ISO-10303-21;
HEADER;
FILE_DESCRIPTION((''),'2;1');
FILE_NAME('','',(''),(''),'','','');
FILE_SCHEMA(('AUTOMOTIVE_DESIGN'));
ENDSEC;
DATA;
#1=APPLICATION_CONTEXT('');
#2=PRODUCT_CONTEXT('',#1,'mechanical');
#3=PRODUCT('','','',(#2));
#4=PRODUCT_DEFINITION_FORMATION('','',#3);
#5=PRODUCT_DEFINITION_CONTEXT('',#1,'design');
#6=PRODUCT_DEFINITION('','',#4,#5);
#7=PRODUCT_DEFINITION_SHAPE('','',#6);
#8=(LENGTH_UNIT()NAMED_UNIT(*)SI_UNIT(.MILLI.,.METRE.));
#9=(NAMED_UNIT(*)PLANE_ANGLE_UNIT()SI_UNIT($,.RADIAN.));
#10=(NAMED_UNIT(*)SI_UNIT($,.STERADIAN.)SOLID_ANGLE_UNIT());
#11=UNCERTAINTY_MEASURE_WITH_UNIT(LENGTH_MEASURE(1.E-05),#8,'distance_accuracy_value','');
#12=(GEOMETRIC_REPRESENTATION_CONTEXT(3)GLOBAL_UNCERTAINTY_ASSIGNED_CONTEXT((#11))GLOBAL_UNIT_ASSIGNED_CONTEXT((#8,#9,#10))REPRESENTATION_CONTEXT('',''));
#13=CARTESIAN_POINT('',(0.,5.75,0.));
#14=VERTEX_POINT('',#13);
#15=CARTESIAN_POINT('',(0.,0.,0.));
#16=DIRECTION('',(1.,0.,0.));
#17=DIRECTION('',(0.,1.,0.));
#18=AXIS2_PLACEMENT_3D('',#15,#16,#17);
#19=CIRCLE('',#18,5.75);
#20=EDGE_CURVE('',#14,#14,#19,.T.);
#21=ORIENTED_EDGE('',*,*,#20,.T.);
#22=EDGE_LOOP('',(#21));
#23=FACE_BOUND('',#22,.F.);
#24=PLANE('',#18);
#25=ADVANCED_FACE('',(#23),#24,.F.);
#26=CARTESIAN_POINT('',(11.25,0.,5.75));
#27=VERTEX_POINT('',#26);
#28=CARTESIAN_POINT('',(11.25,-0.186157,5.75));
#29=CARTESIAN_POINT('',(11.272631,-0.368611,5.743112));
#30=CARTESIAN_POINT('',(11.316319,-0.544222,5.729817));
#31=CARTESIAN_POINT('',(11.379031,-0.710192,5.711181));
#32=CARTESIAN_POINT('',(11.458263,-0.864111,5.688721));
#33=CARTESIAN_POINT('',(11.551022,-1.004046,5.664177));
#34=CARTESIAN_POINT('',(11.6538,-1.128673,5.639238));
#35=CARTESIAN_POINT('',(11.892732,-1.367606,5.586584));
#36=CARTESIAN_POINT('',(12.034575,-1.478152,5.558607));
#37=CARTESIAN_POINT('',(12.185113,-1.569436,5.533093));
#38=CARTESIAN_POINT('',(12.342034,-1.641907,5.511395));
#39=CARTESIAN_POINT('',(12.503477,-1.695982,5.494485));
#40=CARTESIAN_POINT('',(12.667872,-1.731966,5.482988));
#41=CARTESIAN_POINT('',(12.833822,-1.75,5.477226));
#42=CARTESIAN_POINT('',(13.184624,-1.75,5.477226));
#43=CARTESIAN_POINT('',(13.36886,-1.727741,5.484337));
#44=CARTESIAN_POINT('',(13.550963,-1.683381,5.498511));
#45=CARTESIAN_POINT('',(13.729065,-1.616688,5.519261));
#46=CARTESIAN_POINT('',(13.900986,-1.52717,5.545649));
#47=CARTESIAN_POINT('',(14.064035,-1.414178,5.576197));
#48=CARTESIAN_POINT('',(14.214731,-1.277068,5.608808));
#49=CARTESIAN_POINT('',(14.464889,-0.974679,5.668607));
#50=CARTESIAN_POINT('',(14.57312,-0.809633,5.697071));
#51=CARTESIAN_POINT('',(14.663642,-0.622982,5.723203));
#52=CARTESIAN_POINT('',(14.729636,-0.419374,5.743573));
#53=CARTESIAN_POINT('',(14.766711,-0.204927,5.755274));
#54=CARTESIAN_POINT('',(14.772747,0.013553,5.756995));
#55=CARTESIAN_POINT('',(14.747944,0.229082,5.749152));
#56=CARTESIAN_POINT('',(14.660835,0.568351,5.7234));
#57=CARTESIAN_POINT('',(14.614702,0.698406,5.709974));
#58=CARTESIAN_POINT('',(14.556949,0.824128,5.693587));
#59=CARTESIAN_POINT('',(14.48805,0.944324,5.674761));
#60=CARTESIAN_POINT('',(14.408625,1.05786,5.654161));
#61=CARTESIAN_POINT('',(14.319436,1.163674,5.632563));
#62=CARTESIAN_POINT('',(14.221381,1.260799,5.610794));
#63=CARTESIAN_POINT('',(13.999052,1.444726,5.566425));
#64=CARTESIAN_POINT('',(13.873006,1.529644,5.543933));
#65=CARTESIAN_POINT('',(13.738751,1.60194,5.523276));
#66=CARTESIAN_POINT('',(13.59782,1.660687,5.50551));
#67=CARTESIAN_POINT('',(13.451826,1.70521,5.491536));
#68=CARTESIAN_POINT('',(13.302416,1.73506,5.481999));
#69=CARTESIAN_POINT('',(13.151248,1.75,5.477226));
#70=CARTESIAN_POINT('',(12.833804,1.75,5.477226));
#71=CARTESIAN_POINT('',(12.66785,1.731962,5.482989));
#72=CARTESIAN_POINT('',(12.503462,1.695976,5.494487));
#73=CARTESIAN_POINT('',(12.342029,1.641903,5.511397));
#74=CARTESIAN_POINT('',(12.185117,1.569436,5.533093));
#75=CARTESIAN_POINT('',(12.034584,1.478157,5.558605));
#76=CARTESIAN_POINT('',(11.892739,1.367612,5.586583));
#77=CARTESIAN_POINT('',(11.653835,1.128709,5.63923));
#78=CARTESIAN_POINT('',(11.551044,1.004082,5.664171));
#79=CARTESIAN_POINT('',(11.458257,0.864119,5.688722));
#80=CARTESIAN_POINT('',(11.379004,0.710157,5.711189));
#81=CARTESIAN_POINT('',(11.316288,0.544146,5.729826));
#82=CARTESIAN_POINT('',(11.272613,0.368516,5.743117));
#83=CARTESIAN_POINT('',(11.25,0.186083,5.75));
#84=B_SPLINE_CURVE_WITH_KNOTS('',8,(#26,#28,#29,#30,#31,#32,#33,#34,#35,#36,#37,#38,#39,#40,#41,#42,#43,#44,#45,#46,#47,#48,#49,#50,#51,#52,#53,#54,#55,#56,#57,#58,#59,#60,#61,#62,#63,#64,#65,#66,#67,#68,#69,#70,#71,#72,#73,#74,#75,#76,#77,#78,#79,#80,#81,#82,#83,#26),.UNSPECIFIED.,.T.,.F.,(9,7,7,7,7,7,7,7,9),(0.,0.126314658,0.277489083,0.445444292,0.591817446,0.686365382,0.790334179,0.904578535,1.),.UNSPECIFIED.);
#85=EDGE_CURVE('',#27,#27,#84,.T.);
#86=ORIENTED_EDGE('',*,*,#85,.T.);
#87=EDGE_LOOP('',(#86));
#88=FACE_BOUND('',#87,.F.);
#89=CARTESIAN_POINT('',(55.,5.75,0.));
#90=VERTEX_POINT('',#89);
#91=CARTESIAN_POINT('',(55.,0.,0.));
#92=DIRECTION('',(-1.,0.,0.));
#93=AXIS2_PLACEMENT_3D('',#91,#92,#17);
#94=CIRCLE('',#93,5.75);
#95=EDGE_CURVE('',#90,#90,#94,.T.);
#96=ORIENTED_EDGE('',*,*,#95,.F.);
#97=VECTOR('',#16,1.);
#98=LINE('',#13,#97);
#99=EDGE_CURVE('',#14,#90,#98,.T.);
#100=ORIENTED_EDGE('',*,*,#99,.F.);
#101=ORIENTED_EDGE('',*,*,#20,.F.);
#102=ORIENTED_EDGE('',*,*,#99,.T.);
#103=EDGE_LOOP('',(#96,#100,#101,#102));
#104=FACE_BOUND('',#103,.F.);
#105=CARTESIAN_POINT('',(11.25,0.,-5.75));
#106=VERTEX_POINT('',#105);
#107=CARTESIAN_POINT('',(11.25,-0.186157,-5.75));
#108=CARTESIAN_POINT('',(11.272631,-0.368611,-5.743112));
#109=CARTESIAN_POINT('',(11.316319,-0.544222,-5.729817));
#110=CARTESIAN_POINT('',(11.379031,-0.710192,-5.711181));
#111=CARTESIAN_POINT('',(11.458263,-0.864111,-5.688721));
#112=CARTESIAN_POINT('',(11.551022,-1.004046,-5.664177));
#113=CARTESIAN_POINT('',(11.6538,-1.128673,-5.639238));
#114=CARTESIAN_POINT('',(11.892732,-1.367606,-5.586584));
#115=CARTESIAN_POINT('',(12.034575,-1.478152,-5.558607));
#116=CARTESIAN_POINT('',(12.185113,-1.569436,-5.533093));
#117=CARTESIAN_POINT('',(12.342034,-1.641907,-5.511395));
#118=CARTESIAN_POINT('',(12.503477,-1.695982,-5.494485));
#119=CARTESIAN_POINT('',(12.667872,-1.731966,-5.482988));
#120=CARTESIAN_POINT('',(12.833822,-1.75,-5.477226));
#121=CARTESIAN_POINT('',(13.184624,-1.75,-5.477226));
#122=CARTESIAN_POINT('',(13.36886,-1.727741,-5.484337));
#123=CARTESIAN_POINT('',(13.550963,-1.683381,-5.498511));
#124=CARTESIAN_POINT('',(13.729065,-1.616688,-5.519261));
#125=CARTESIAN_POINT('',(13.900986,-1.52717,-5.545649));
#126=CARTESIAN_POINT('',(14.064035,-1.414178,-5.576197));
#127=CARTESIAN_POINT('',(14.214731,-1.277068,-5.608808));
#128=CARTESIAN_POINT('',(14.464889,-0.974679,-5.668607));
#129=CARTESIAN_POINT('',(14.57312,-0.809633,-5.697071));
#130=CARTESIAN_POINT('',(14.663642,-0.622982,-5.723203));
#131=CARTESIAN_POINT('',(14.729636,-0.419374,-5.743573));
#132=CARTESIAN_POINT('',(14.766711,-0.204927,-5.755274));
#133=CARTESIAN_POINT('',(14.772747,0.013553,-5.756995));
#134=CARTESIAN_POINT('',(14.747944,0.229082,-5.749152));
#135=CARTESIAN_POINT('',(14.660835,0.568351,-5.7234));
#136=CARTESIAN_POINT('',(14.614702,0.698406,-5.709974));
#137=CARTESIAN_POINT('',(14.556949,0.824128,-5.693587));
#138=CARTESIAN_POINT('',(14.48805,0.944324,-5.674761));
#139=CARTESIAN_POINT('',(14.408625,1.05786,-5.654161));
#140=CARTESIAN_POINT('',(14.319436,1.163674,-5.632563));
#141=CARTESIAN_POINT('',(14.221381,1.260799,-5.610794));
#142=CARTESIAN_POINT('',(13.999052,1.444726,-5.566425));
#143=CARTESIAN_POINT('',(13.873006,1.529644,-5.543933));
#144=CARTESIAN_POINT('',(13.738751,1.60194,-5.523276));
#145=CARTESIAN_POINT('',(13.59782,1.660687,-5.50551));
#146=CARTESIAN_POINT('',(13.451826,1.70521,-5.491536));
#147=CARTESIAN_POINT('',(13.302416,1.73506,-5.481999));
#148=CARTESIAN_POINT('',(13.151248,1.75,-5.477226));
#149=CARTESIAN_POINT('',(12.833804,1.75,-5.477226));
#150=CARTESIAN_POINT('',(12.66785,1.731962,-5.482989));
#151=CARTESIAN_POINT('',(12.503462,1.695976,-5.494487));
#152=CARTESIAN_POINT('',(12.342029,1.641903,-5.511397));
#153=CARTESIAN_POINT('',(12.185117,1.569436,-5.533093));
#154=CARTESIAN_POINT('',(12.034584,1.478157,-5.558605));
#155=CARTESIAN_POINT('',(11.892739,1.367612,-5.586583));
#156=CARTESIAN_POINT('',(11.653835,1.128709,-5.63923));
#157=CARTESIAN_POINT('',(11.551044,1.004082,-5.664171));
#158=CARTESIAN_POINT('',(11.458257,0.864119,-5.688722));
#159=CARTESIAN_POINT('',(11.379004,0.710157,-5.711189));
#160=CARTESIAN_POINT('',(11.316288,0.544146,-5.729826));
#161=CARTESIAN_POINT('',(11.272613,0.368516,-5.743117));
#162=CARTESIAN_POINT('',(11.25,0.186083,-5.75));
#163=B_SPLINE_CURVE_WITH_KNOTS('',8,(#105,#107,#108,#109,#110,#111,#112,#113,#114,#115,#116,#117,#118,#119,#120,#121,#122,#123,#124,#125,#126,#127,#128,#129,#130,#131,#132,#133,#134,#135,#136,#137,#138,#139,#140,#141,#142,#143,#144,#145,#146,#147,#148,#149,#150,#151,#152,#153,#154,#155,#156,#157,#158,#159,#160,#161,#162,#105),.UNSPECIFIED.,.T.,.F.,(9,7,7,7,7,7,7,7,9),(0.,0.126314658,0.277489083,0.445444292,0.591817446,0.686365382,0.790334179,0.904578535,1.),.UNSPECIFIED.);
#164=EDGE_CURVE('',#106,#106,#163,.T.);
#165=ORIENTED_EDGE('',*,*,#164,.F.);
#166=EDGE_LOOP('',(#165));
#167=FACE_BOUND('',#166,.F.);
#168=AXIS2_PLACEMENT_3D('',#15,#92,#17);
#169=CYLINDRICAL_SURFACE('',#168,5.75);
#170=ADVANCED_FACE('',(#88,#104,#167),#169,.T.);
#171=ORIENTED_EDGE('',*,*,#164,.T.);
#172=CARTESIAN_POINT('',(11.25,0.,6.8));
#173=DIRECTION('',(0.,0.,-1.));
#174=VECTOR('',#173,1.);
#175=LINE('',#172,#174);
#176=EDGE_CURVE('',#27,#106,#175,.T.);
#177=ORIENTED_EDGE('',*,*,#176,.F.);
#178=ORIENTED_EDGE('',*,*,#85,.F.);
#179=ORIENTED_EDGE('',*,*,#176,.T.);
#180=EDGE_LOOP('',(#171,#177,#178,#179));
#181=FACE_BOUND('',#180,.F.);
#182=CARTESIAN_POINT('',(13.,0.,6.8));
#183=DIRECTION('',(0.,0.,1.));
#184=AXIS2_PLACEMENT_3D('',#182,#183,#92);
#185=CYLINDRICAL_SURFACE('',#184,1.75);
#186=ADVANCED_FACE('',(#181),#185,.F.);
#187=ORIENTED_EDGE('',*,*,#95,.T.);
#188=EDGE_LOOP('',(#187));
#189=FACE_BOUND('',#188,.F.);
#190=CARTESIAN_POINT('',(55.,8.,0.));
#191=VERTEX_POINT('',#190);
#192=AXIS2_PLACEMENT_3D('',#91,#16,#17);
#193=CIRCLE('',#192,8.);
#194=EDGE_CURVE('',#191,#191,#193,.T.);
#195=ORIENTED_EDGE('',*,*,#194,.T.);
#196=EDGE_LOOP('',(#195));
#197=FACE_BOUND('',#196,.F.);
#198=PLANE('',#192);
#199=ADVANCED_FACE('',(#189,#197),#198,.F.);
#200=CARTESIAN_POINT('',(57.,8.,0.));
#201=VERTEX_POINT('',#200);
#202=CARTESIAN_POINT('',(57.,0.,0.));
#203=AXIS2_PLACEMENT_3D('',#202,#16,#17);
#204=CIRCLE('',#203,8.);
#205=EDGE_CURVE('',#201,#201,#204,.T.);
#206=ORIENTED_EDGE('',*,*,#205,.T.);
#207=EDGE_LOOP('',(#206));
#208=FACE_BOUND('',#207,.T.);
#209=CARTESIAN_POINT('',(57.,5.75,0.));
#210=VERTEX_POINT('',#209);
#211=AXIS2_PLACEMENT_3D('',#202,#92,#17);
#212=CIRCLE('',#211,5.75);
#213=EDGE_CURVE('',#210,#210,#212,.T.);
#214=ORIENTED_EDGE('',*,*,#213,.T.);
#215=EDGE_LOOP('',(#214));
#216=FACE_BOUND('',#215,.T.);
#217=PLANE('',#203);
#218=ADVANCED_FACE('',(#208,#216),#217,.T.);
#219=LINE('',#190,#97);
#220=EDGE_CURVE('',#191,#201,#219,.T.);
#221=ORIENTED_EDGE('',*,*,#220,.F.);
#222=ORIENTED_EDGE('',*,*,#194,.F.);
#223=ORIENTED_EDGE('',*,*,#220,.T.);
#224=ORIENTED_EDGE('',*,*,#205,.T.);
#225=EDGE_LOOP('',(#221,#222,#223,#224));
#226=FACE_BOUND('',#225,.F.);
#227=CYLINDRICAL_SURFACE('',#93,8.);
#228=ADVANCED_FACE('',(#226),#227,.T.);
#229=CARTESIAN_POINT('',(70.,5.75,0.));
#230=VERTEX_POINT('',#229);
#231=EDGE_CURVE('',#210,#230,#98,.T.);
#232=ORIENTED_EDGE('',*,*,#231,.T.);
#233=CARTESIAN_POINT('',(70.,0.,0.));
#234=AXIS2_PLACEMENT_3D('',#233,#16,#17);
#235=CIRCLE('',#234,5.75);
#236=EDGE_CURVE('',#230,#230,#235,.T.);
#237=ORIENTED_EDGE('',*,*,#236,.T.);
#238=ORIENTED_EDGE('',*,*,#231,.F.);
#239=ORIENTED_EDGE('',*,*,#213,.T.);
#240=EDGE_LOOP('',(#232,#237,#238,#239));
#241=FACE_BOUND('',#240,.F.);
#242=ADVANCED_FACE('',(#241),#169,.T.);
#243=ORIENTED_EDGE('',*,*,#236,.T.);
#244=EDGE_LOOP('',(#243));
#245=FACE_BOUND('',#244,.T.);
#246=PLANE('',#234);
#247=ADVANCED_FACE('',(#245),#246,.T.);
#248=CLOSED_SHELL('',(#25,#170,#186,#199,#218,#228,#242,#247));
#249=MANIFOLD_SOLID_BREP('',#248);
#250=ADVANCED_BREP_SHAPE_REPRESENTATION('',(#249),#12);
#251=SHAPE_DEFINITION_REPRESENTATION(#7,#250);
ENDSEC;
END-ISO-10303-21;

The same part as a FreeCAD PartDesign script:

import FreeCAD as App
import Part
import Sketcher

V = App.Vector

doc = App.newDocument("Part")
body = doc.addObject("PartDesign::Body", "Body")

# Sketch on YZ plane
sketch1 = doc.addObject("Sketcher::SketchObject", "Sketch")
body.addObject(sketch1)
sketch1.AttachmentSupport = (doc.YZ_Plane, [""])
sketch1.MapMode = "FlatFace"
sketch1.addGeometry(Part.Circle(V(0, 0, 0), V(0, 0, 1), 6), False)
sketch1.addConstraint([
    Sketcher.Constraint("Coincident", 0, 3, -1, 1),
    Sketcher.Constraint("Diameter", 0, 11.5),
])
pad1 = doc.addObject("PartDesign::Pad", "Pad")
body.addObject(pad1)
pad1.Profile = sketch1
pad1.Length = 70

# Sketch on XY plane
sketch2 = doc.addObject("Sketcher::SketchObject", "Sketch001")
body.addObject(sketch2)
sketch2.AttachmentSupport = (doc.XY_Plane, [""])
sketch2.MapMode = "FlatFace"
sketch2.AttachmentOffset = App.Placement(V(0, 0, 6.8), App.Rotation())
sketch2.addGeometry(Part.Circle(V(13, 0, 0), V(0, 0, 1), 1.8), False)
sketch2.addConstraint([
    Sketcher.Constraint("PointOnObject", 0, 3, -1),
    Sketcher.Constraint("Diameter", 0, 3.5),
    Sketcher.Constraint("DistanceX", -1, 1, 0, 3, 13.0),
])
pocket1 = doc.addObject("PartDesign::Pocket", "Pocket")
body.addObject(pocket1)
pocket1.Profile = sketch2
pocket1.Length = 25

# Sketch on YZ plane
sketch3 = doc.addObject("Sketcher::SketchObject", "Sketch002")
body.addObject(sketch3)
sketch3.AttachmentSupport = (doc.YZ_Plane, [""])
sketch3.MapMode = "FlatFace"
sketch3.AttachmentOffset = App.Placement(V(0, 0, 55), App.Rotation())
sketch3.addGeometry(Part.Circle(V(0, 0, 0), V(0, 0, 1), 8), False)
sketch3.addConstraint([
    Sketcher.Constraint("Coincident", 0, 3, -1, 1),
    Sketcher.Constraint("Diameter", 0, 16.0),
])
pad2 = doc.addObject("PartDesign::Pad", "Pad001")
body.addObject(pad2)
pad2.Profile = sketch3
pad2.Length = 2

doc.recompute()
